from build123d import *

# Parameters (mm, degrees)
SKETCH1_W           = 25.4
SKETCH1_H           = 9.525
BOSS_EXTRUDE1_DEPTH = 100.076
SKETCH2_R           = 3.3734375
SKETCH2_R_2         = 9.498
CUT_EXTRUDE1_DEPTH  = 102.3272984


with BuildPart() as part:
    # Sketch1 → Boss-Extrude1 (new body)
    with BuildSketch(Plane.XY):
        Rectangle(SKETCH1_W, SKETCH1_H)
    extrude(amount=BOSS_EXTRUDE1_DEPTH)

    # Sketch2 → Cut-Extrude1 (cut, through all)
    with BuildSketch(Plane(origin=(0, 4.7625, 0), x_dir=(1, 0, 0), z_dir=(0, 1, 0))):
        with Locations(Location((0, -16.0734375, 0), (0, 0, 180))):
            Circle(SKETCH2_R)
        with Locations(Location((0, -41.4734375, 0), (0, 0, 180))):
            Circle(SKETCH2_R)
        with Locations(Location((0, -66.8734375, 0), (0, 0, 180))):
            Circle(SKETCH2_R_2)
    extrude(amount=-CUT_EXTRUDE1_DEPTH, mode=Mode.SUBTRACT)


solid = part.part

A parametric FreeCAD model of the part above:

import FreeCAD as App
import Part
import Sketcher
Q = App.Units.Quantity

doc = App.newDocument("Part")
body = doc.addObject("PartDesign::Body", "Body")

# Sketch on XY plane
sketch1 = body.newObject("Sketcher::SketchObject", "Sketch")
sketch1.AttachmentSupport = (doc.getObject("XY_Plane"), [""])
sketch1.MapMode = "FlatFace"
sketch1.addGeometry(Part.LineSegment(App.Vector(-13, 5, 0), App.Vector(-13, -5, 0)), False)
sketch1.addGeometry(Part.LineSegment(App.Vector(-13, -5, 0), App.Vector(13, -5, 0)), False)
sketch1.addGeometry(Part.LineSegment(App.Vector(13, -5, 0), App.Vector(13, 5, 0)), False)
sketch1.addGeometry(Part.LineSegment(App.Vector(13, 5, 0), App.Vector(-13, 5, 0)), False)
sketch1.addConstraint(Sketcher.Constraint("Coincident", 0, 2, 1, 1))
sketch1.addConstraint(Sketcher.Constraint("Coincident", 1, 2, 2, 1))
sketch1.addConstraint(Sketcher.Constraint("Coincident", 2, 2, 3, 1))
sketch1.addConstraint(Sketcher.Constraint("Coincident", 3, 2, 0, 1))
sketch1.addConstraint(Sketcher.Constraint("Vertical", 0))
sketch1.addConstraint(Sketcher.Constraint("Horizontal", 1))
sketch1.addConstraint(Sketcher.Constraint("Vertical", 2))
sketch1.addConstraint(Sketcher.Constraint("Horizontal", 3))
sketch1.addConstraint(Sketcher.Constraint("Symmetric", 0, 2, 2, 2, -1, 1))
sketch1.addConstraint(Sketcher.Constraint("DistanceX", 1, 1, 1, 2, Q("1 in")))
sketch1.addConstraint(Sketcher.Constraint("DistanceY", 0, 2, 0, 1, Q("0.375 in")))
pad1 = body.newObject("PartDesign::Pad", "Pad")
pad1.Profile = sketch1
pad1.Length = Q("3.94 in")

# Sketch on XZ plane
sketch2 = body.newObject("Sketcher::SketchObject", "Sketch001")
sketch2.AttachmentSupport = (doc.getObject("XZ_Plane"), [""])
sketch2.MapMode = "FlatFace"
sketch2.AttachmentOffset = App.Placement(App.Vector(0, 0, -0.1875 * 25.4), App.Rotation())
sketch2.addGeometry(Part.Circle(App.Vector(0, 16.1, 0), App.Vector(0, 0, 1), 3.4), False)
sketch2.addGeometry(Part.Circle(App.Vector(0, 41.5, 0), App.Vector(0, 0, 1), 3.4), False)
sketch2.addGeometry(Part.Circle(App.Vector(0, 66.9, 0), App.Vector(0, 0, 1), 9.5), False)
sketch2.addConstraint(Sketcher.Constraint("Equal", 0, 1))
sketch2.addConstraint(Sketcher.Constraint("PointOnObject", 0, 3, -2))
sketch2.addConstraint(Sketcher.Constraint("PointOnObject", 1, 3, -2))
sketch2.addConstraint(Sketcher.Constraint("PointOnObject", 2, 3, -2))
sketch2.addConstraint(Sketcher.Constraint("Diameter", 0, Q("0.265625 in")))
sketch2.addConstraint(Sketcher.Constraint("DistanceY", 0, 3, 1, 3, Q("1 in")))
sketch2.addConstraint(Sketcher.Constraint("DistanceY", 1, 3, 2, 3, Q("1 in")))
sketch2.addConstraint(Sketcher.Constraint("Diameter", 2, 18.996))
sketch2.addConstraint(Sketcher.Constraint("DistanceY", -1, 1, 0, 3, 16.073438))
pocket1 = body.newObject("PartDesign::Pocket", "Pocket")
pocket1.Profile = sketch2
pocket1.Type = "ThroughAll"
pocket1.Reversed = True

doc.recompute()
